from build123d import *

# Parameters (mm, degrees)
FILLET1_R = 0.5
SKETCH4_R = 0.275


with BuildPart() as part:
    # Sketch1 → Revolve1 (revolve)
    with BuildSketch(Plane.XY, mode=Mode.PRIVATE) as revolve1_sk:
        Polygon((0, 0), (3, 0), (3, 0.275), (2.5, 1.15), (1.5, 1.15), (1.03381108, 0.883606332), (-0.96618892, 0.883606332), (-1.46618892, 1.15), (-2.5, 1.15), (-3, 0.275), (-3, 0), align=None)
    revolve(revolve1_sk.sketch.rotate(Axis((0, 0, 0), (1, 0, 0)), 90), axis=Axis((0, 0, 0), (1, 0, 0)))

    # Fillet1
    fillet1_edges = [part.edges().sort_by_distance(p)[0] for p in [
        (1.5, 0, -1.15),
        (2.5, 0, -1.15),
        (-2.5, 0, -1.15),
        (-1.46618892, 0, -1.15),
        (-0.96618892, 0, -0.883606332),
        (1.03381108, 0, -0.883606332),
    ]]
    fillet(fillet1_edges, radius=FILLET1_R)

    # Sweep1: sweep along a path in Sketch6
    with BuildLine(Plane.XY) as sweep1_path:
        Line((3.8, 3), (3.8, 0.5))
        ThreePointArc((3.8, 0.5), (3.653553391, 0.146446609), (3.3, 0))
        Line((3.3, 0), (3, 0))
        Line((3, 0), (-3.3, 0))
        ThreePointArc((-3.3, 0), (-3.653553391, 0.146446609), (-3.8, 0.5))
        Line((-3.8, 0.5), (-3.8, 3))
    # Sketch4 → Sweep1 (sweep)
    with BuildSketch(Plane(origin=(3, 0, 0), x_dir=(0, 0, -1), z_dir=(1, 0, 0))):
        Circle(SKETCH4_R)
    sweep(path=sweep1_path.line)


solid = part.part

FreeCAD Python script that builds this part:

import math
import FreeCAD as App
import Part
import Sketcher

V = App.Vector
Q = App.Units.Quantity


def edges_at(feature, points):
    """Names of the edges that pass closest to the given points."""
    edges = feature.Shape.Edges
    near = lambda p: min(range(len(edges)), key=lambda i: edges[i].distToShape(Part.Vertex(*p))[0])
    return sorted({f"Edge{near(p) + 1}" for p in points})

doc = App.newDocument("Part")
body = doc.addObject("PartDesign::Body", "Body")

# Sketch on XY plane
sketch1 = body.newObject("Sketcher::SketchObject", "Sketch")
sketch1.AttachmentSupport = (doc.getObject("XY_Plane"), [""])
sketch1.MapMode = "FlatFace"
sketch1.addGeometry([
    Part.LineSegment(V(3, 0, 0), V(3, 0.28, 0)),  # 0
    Part.LineSegment(V(3, 0.28, 0), V(2.5, 1.15, 0)),  # 1
    Part.LineSegment(V(2.5, 1.15, 0), V(1.5, 1.15, 0)),  # 2
    Part.LineSegment(V(1.5, 1.15, 0), V(1.03, 0.88, 0)),  # 3
    Part.LineSegment(V(1.03, 0.88, 0), V(-0.97, 0.88, 0)),  # 4
    Part.LineSegment(V(-0.97, 0.88, 0), V(-1.47, 1.15, 0)),  # 5
    Part.LineSegment(V(-1.47, 1.15, 0), V(-2.5, 1.15, 0)),  # 6
    Part.LineSegment(V(-2.5, 1.15, 0), V(-3, 0.28, 0)),  # 7
    Part.LineSegment(V(-3, 0.28, 0), V(-3, 0, 0)),  # 8
    Part.LineSegment(V(-3, 0, 0), V(3, 0, 0)),  # 9
], False)
sketch1.addConstraint([
    Sketcher.Constraint("Coincident", 0, 2, 1, 1),
    Sketcher.Constraint("Coincident", 1, 2, 2, 1),
    Sketcher.Constraint("Coincident", 2, 2, 3, 1),
    Sketcher.Constraint("Coincident", 3, 2, 4, 1),
    Sketcher.Constraint("Coincident", 4, 2, 5, 1),
    Sketcher.Constraint("Coincident", 5, 2, 6, 1),
    Sketcher.Constraint("Coincident", 6, 2, 7, 1),
    Sketcher.Constraint("Coincident", 7, 2, 8, 1),
    Sketcher.Constraint("Coincident", 8, 2, 9, 1),
    Sketcher.Constraint("Coincident", 9, 2, 0, 1),
    Sketcher.Constraint("Vertical", 0),
    Sketcher.Constraint("Horizontal", 2),
    Sketcher.Constraint("Horizontal", 4),
    Sketcher.Constraint("Horizontal", 6),
    Sketcher.Constraint("Vertical", 8),
    Sketcher.Constraint("Horizontal", 9),
    Sketcher.Constraint("Symmetric", 8, 2, 9, 2, -1, 1),
    Sketcher.Constraint("Symmetric", 1, 2, 6, 2, -2),
    Sketcher.Constraint("Perpendicular", 1, 3),
    Sketcher.Constraint("Horizontal", 0, 2, 7, 2),
    Sketcher.Constraint("DistanceX", 2, 2, 2, 1, Q("1 mm")),
    Sketcher.Constraint("DistanceX", 4, 2, 4, 1, Q("2 mm")),
    Sketcher.Constraint("DistanceX", 9, 1, 9, 2, Q("6 mm")),
    Sketcher.Constraint("DistanceX", 6, 2, 2, 2, Q("4 mm")),
    Sketcher.Constraint("DistanceX", 5, 2, 4, 2, Q("0.5 mm")),
    Sketcher.Constraint("DistanceY", 0, 1, 0, 2, Q("0.275 mm")),
    Sketcher.Constraint("DistanceY", -1, 1, 1, 2, Q("1.15 mm")),
    Sketcher.Constraint("DistanceX", 6, 2, 6, 1, Q("1.033811 mm")),
])
revolution = body.newObject("PartDesign::Revolution", "Revolution")
revolution.Profile = sketch1
revolution.ReferenceAxis = (sketch1, ["H_Axis"])
revolution.Angle = 360
doc.recompute()

fillet = body.newObject("PartDesign::Fillet", "Fillet")
fillet.Base = (revolution, edges_at(revolution, [
    (1.5, 0, -1.15),
    (2.5, 0, -1.15),
    (-2.5, 0, -1.15),
    (-1.466, 0, -1.15),
    (-0.966, 0, -0.884),
    (1.034, 0, -0.884),
]))
fillet.Radius = 0.5

# Sketch on YZ plane
sketch2 = body.newObject("Sketcher::SketchObject", "Sketch001")
sketch2.AttachmentSupport = (doc.getObject("YZ_Plane"), [""])
sketch2.MapMode = "FlatFace"
sketch2.AttachmentOffset = App.Placement(V(0, 0, 3), App.Rotation())
sketch2.addGeometry(Part.Circle(V(0, 0, 0), V(0, 0, 1), 0.28), False)
sketch2.addConstraint([
    Sketcher.Constraint("Coincident", 0, 3, -1, 1),
    Sketcher.Constraint("Diameter", 0, Q("0.55 mm")),
])

# Sketch on XY plane
sketch3 = body.newObject("Sketcher::SketchObject", "Sketch002")
sketch3.AttachmentSupport = (doc.getObject("XY_Plane"), [""])
sketch3.MapMode = "FlatFace"
sketch3.addGeometry([
    Part.LineSegment(V(3.8, 3, 0), V(3.8, 0.5, 0)),  # 0
    Part.ArcOfCircle(Part.Circle(V(3.3, 0.5, 0), V(0, 0, 1), 0.5), math.radians(-90), math.radians(0)),  # 1
    Part.LineSegment(V(3.3, 0, 0), V(-3.3, 0, 0)),  # 2
    Part.ArcOfCircle(Part.Circle(V(-3.3, 0.5, 0), V(0, 0, 1), 0.5), math.radians(180), math.radians(270)),  # 3
    Part.LineSegment(V(-3.8, 0.5, 0), V(-3.8, 3, 0)),  # 4
], False)
sketch3.addConstraint([
    Sketcher.Constraint("Tangent", 0, 2, 1, 2),
    Sketcher.Constraint("Tangent", 1, 1, 2, 1),
    Sketcher.Constraint("Tangent", 2, 2, 3, 2),
    Sketcher.Constraint("Tangent", 3, 1, 4, 1),
    Sketcher.Constraint("Vertical", 0),
    Sketcher.Constraint("Horizontal", 2),
    Sketcher.Constraint("Vertical", 4),
    Sketcher.Constraint("Equal", 1, 3),
    Sketcher.Constraint("Symmetric", 1, 1, 2, 2, -1, 1),
    Sketcher.Constraint("Horizontal", 0, 1, 4, 2),
    Sketcher.Constraint("Radius", 1, Q("0.5 mm")),
    Sketcher.Constraint("DistanceX", 2, 2, 2, 1, Q("6.6 mm")),
    Sketcher.Constraint("DistanceY", 0, 2, 0, 1, Q("2.5 mm")),
])
doc.recompute()

additivepipe = body.newObject("PartDesign::AdditivePipe", "AdditivePipe")
additivepipe.Profile = sketch2
additivepipe.Spine = (sketch3, ["Edge1", "Edge2", "Edge3", "Edge4", "Edge5"])

doc.recompute()
